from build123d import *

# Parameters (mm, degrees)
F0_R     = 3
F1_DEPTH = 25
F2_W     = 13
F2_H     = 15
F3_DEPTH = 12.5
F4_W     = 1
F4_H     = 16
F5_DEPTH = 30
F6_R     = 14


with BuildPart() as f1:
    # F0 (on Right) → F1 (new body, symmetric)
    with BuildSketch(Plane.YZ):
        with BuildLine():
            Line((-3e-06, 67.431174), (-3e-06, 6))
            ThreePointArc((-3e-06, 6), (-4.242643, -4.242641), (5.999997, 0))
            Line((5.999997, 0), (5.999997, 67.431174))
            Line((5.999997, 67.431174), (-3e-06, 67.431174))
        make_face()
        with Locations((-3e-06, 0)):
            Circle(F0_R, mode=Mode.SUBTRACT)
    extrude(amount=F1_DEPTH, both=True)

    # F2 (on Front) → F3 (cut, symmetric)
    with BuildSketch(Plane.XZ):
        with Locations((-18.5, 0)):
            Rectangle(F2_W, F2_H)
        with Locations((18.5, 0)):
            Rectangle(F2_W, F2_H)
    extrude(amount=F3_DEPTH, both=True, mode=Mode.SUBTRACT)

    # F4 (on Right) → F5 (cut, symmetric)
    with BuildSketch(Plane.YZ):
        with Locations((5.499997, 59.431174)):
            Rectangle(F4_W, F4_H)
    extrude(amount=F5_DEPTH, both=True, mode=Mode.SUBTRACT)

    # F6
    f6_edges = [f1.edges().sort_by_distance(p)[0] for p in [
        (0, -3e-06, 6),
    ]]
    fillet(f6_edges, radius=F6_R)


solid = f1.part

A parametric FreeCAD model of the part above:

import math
import FreeCAD as App
import Part
import Sketcher

V = App.Vector
Q = App.Units.Quantity


def edges_at(feature, points):
    """Names of the edges that pass closest to the given points."""
    edges = feature.Shape.Edges
    near = lambda p: min(range(len(edges)), key=lambda i: edges[i].distToShape(Part.Vertex(*p))[0])
    return sorted({f"Edge{near(p) + 1}" for p in points})

doc = App.newDocument("Part")
body = doc.addObject("PartDesign::Body", "Body")

# Sketch on YZ plane
sketch1 = body.newObject("Sketcher::SketchObject", "Sketch")
sketch1.AttachmentSupport = (doc.getObject("YZ_Plane"), [""])
sketch1.MapMode = "FlatFace"
sketch1.addGeometry(Part.LineSegment(V(0, 67.4, 0), V(0, 6, 0)), False)
sketch1.addGeometry(Part.ArcOfCircle(Part.Circle(V(0, 0, 0), V(0, 0, 1), 6), math.radians(90), math.radians(360)), False)
sketch1.addGeometry(Part.LineSegment(V(6, 0, 0), V(6, 67.4, 0)), False)
sketch1.addGeometry(Part.LineSegment(V(6, 67.4, 0), V(0, 67.4, 0)), False)
sketch1.addGeometry(Part.Circle(V(0, 0, 0), V(0, 0, 1), 3), False)
sketch1.addConstraint(Sketcher.Constraint("Coincident", 0, 2, 1, 1))
sketch1.addConstraint(Sketcher.Constraint("Tangent", 1, 2, 2, 1))
sketch1.addConstraint(Sketcher.Constraint("Coincident", 2, 2, 3, 1))
sketch1.addConstraint(Sketcher.Constraint("Coincident", 3, 2, 0, 1))
sketch1.addConstraint(Sketcher.Constraint("Vertical", 0))
sketch1.addConstraint(Sketcher.Constraint("Vertical", 2))
sketch1.addConstraint(Sketcher.Constraint("Horizontal", 3))
sketch1.addConstraint(Sketcher.Constraint("Coincident", 1, 3, -1, 1))
sketch1.addConstraint(Sketcher.Constraint("Coincident", 4, 3, -1, 1))
sketch1.addConstraint(Sketcher.Constraint("Vertical", 1, 3, 0, 2))
sketch1.addConstraint(Sketcher.Constraint("Diameter", 4, Q("6 mm")))
sketch1.addConstraint(Sketcher.Constraint("Radius", 1, Q("6 mm")))
sketch1.addConstraint(Sketcher.Constraint("DistanceY", 0, 2, 0, 1, Q("61.431174 mm")))
pad1 = body.newObject("PartDesign::Pad", "Pad")
pad1.Profile = sketch1
pad1.Length = 50
pad1.Midplane = True

# Sketch on XZ plane
sketch2 = body.newObject("Sketcher::SketchObject", "Sketch001")
sketch2.AttachmentSupport = (doc.getObject("XZ_Plane"), [""])
sketch2.MapMode = "FlatFace"
sketch2.addGeometry(Part.LineSegment(V(-25, 8, 0), V(-25, -8, 0)), False)
sketch2.addGeometry(Part.LineSegment(V(-25, -8, 0), V(-12, -8, 0)), False)
sketch2.addGeometry(Part.LineSegment(V(-12, -8, 0), V(-12, 8, 0)), False)
sketch2.addGeometry(Part.LineSegment(V(-12, 8, 0), V(-25, 8, 0)), False)
sketch2.addGeometry(Part.LineSegment(V(12, 8, 0), V(12, -8, 0)), False)
sketch2.addGeometry(Part.LineSegment(V(12, -8, 0), V(25, -8, 0)), False)
sketch2.addGeometry(Part.LineSegment(V(25, -8, 0), V(25, 8, 0)), False)
sketch2.addGeometry(Part.LineSegment(V(25, 8, 0), V(12, 8, 0)), False)
sketch2.addConstraint(Sketcher.Constraint("Coincident", 0, 2, 1, 1))
sketch2.addConstraint(Sketcher.Constraint("Coincident", 1, 2, 2, 1))
sketch2.addConstraint(Sketcher.Constraint("Coincident", 2, 2, 3, 1))
sketch2.addConstraint(Sketcher.Constraint("Coincident", 3, 2, 0, 1))
sketch2.addConstraint(Sketcher.Constraint("Coincident", 4, 2, 5, 1))
sketch2.addConstraint(Sketcher.Constraint("Coincident", 5, 2, 6, 1))
sketch2.addConstraint(Sketcher.Constraint("Coincident", 6, 2, 7, 1))
sketch2.addConstraint(Sketcher.Constraint("Coincident", 7, 2, 4, 1))
sketch2.addConstraint(Sketcher.Constraint("Vertical", 0))
sketch2.addConstraint(Sketcher.Constraint("Horizontal", 1))
sketch2.addConstraint(Sketcher.Constraint("Vertical", 2))
sketch2.addConstraint(Sketcher.Constraint("Horizontal", 3))
sketch2.addConstraint(Sketcher.Constraint("Vertical", 4))
sketch2.addConstraint(Sketcher.Constraint("Horizontal", 5))
sketch2.addConstraint(Sketcher.Constraint("Vertical", 6))
sketch2.addConstraint(Sketcher.Constraint("Horizontal", 7))
sketch2.addConstraint(Sketcher.Constraint("Symmetric", 2, 2, 4, 2, -1, 1))
sketch2.addConstraint(Sketcher.Constraint("Symmetric", 0, 2, 6, 2, -1, 1))
sketch2.addConstraint(Sketcher.Constraint("Horizontal", 1, 2, 4, 2))
sketch2.addConstraint(Sketcher.Constraint("DistanceX", 1, 1, 1, 2, Q("13 mm")))
sketch2.addConstraint(Sketcher.Constraint("DistanceY", 0, 2, 0, 1, Q("15 mm")))
sketch2.addConstraint(Sketcher.Constraint("DistanceX", 0, 2, -1, 1, Q("25 mm")))
pocket1 = body.newObject("PartDesign::Pocket", "Pocket")
pocket1.Profile = sketch2
pocket1.Length = 25
pocket1.Midplane = True

# Sketch on YZ plane
sketch3 = body.newObject("Sketcher::SketchObject", "Sketch002")
sketch3.AttachmentSupport = (doc.getObject("YZ_Plane"), [""])
sketch3.MapMode = "FlatFace"
sketch3.addGeometry(Part.LineSegment(V(5, 67.4, 0), V(5, 51.4, 0)), False)
sketch3.addGeometry(Part.LineSegment(V(5, 51.4, 0), V(6, 51.4, 0)), False)
sketch3.addGeometry(Part.LineSegment(V(6, 51.4, 0), V(6, 67.4, 0)), False)
sketch3.addGeometry(Part.LineSegment(V(6, 67.4, 0), V(5, 67.4, 0)), False)
sketch3.addConstraint(Sketcher.Constraint("Coincident", 0, 2, 1, 1))
sketch3.addConstraint(Sketcher.Constraint("Coincident", 1, 2, 2, 1))
sketch3.addConstraint(Sketcher.Constraint("Coincident", 2, 2, 3, 1))
sketch3.addConstraint(Sketcher.Constraint("Coincident", 3, 2, 0, 1))
sketch3.addConstraint(Sketcher.Constraint("Vertical", 0))
sketch3.addConstraint(Sketcher.Constraint("Horizontal", 1))
sketch3.addConstraint(Sketcher.Constraint("Vertical", 2))
sketch3.addConstraint(Sketcher.Constraint("Horizontal", 3))
sketch3.addConstraint(Sketcher.Constraint("DistanceX", 1, 1, 1, 2, Q("1 mm")))
sketch3.addConstraint(Sketcher.Constraint("DistanceY", 0, 2, 0, 1, Q("16 mm")))
sketch3.addConstraint(Sketcher.Constraint("DistanceX", -1, 1, 0, 2, Q("4.999997 mm")))
sketch3.addConstraint(Sketcher.Constraint("DistanceY", -1, 1, 0, 2, Q("51.431174 mm")))
pocket2 = body.newObject("PartDesign::Pocket", "Pocket001")
pocket2.Profile = sketch3
pocket2.Length = 60
pocket2.Midplane = True
doc.recompute()

fillet = body.newObject("PartDesign::Fillet", "Fillet")
fillet.Base = (pocket2, edges_at(pocket2, [(0, 0, 6)]))
fillet.Radius = 14

doc.recompute()
